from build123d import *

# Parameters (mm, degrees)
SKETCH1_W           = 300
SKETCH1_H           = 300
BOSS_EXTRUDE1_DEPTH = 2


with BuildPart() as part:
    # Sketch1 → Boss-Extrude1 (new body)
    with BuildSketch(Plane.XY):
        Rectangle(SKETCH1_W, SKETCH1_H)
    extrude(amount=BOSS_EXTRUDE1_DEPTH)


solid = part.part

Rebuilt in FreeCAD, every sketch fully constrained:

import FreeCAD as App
import Part
import Sketcher
Q = App.Units.Quantity


def add_polygon(sketch, points):
    """Adds a closed chain of lines whose ends are joined by coincident constraints."""
    first, n = sketch.GeometryCount, len(points)
    for a, b in zip(points, points[1:] + points[:1]):
        sketch.addGeometry(Part.LineSegment(App.Vector(*a, 0), App.Vector(*b, 0)), False)
    for i in range(n):
        sketch.addConstraint(Sketcher.Constraint("Coincident", first + i, 2, first + (i + 1) % n, 1))

doc = App.newDocument("Part")
body = doc.addObject("PartDesign::Body", "Body")

# Sketch on XY plane
sketch1 = doc.addObject("Sketcher::SketchObject", "Sketch")
body.addObject(sketch1)
sketch1.AttachmentSupport = (doc.XY_Plane, [""])
sketch1.MapMode = "FlatFace"
add_polygon(sketch1, [(-150, 150), (-150, -150), (150, -150), (150, 150)])  # lines 0-3
sketch1.addConstraint(Sketcher.Constraint("Vertical", 0))
sketch1.addConstraint(Sketcher.Constraint("Horizontal", 1))
sketch1.addConstraint(Sketcher.Constraint("Vertical", 2))
sketch1.addConstraint(Sketcher.Constraint("Horizontal", 3))
sketch1.addConstraint(Sketcher.Constraint("Symmetric", 0, 2, 2, 2, -1, 1))
sketch1.addConstraint(Sketcher.Constraint("Equal", 3, 0))
sketch1.addConstraint(Sketcher.Constraint("DistanceX", 1, 1, 1, 2, Q("300 mm")))
pad1 = doc.addObject("PartDesign::Pad", "Pad")
body.addObject(pad1)
pad1.Profile = sketch1
pad1.Length = 2

doc.recompute()
